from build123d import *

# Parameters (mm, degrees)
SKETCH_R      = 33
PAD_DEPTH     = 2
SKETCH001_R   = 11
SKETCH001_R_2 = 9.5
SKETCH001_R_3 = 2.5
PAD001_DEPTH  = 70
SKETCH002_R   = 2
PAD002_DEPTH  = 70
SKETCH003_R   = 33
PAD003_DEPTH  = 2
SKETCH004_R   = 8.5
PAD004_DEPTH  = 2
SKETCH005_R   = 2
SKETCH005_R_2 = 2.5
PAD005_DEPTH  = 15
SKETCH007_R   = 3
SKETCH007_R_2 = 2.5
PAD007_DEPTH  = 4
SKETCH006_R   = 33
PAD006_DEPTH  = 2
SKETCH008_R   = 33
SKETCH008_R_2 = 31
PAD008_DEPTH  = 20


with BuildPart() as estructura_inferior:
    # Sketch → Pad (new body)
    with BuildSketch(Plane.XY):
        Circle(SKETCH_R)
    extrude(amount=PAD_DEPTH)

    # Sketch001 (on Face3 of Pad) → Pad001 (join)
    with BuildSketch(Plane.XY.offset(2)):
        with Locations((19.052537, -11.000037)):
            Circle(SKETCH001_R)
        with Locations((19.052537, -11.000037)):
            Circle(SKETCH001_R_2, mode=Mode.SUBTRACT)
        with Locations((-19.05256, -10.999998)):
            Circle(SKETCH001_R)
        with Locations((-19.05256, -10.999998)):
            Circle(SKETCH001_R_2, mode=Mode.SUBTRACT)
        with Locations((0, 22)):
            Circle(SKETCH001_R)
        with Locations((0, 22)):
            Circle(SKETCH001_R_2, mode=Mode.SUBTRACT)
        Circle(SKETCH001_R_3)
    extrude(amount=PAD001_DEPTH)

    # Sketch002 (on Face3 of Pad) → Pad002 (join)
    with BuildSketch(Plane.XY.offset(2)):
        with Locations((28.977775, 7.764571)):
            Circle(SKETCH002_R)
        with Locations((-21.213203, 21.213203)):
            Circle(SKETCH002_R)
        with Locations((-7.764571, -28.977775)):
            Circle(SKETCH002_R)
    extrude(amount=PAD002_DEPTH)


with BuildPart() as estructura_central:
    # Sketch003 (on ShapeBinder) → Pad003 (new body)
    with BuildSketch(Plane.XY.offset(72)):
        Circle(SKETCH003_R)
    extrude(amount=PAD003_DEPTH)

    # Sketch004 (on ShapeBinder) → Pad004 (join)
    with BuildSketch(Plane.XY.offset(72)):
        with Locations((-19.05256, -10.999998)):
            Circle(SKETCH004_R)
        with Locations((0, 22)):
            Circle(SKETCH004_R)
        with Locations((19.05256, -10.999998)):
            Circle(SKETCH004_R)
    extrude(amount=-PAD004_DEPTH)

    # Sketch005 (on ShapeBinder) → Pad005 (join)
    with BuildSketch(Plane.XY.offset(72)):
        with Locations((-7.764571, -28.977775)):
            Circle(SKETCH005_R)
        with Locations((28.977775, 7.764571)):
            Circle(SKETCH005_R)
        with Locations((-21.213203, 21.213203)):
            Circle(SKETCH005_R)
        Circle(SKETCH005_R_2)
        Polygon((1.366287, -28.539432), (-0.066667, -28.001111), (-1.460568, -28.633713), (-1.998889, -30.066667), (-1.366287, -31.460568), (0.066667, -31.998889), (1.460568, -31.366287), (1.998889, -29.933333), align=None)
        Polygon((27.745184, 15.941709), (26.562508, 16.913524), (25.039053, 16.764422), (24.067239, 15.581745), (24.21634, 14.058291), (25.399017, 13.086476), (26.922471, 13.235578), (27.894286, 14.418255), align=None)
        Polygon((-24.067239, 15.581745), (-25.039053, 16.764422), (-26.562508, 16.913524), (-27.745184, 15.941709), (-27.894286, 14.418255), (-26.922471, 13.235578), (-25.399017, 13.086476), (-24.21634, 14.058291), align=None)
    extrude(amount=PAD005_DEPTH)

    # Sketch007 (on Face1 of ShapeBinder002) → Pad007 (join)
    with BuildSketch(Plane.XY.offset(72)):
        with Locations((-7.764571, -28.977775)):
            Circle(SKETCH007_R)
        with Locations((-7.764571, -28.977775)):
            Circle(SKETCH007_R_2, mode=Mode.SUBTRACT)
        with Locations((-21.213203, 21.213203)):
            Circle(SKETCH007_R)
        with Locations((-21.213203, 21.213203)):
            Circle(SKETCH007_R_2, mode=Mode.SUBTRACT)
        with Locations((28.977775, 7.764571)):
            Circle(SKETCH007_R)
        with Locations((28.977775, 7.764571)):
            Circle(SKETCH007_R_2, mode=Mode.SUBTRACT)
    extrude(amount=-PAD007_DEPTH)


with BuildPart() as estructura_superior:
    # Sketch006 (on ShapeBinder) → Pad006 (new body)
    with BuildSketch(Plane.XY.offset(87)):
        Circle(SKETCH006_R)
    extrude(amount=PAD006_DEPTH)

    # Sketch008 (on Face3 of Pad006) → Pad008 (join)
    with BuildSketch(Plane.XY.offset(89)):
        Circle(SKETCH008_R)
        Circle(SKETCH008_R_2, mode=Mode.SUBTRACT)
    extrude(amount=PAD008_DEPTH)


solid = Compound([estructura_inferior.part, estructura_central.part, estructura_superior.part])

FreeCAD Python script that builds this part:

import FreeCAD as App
import Part
import Sketcher
from FreeCAD import Vector


def add_polygon(sketch, points):
    """Adds a closed chain of lines whose ends are joined by coincident constraints."""
    first, n = sketch.GeometryCount, len(points)
    for a, b in zip(points, points[1:] + points[:1]):
        sketch.addGeometry(Part.LineSegment(App.Vector(*a, 0), App.Vector(*b, 0)), False)
    for i in range(n):
        sketch.addConstraint(Sketcher.Constraint("Coincident", first + i, 2, first + (i + 1) % n, 1))

doc = App.newDocument("Part")
params = doc.addObject("Spreadsheet::Sheet", "Params")
for row, (alias, value) in enumerate([
    ("sketch1_diameter", "66 mm"),
    ("pad1_length", "2 mm"),
    ("sketch2_diameter", "22 mm"),
    ("sketch2_diameter2", "19 mm"),
    ("sketch2_diameter3", "5 mm"),
    ("pad2_length", "70 mm"),
    ("sketch3_diameter", "4 mm"),
    ("pad3_length", "70 mm"),
    ("sketch4_diameter", "66 mm"),
    ("pad4_length", "2 mm"),
    ("sketch5_diameter", "17 mm"),
    ("pad5_length", "2 mm"),
    ("sketch6_diameter", "4 mm"),
    ("sketch6_diameter2", "5 mm"),
    ("pad6_length", "15 mm"),
    ("sketch7_diameter", "6 mm"),
    ("sketch7_diameter2", "5 mm"),
    ("pad7_length", "4 mm"),
    ("sketch8_diameter", "66 mm"),
    ("pad8_length", "2 mm"),
    ("sketch9_diameter", "66 mm"),
    ("sketch9_diameter2", "62 mm"),
    ("pad9_length", "20 mm"),
], start=1):
    params.set(f"A{row}", alias)
    params.set(f"B{row}", "=" + value)
    params.setAlias(f"B{row}", alias)

body = doc.addObject("PartDesign::Body", "Body")

sketch1 = body.newObject("Sketcher::SketchObject", "Sketch")
sketch1.AttachmentSupport = (doc.getObject("XY_Plane"), [""])
sketch1.MapMode = "FlatFace"
sketch1.addGeometry(Part.Circle(Vector(0, 0, 0), Vector(0, 0, 1), 33), False)
sketch1.addConstraint([
    Sketcher.Constraint("Coincident", 0, 3, -1, 1),
    Sketcher.Constraint("Diameter", 0, 66.0),
])
sketch1.setExpression("Constraints[1]", "Params.sketch1_diameter")
pad1 = body.newObject("PartDesign::Pad", "Pad")
pad1.Profile = sketch1
pad1.setExpression("Length", "Params.pad1_length")

sketch2 = body.newObject("Sketcher::SketchObject", "Sketch001")
sketch2.AttachmentSupport = (doc.getObject("XY_Plane"), [""])
sketch2.MapMode = "FlatFace"
sketch2.AttachmentOffset = App.Placement(Vector(0, 0, 2), App.Rotation())
sketch2.addGeometry([
    Part.Circle(Vector(19.1, -11, 0), Vector(0, 0, 1), 11),
    Part.Circle(Vector(19.1, -11, 0), Vector(0, 0, 1), 9.5),
    Part.Circle(Vector(-19.1, -11, 0), Vector(0, 0, 1), 11),
    Part.Circle(Vector(-19.1, -11, 0), Vector(0, 0, 1), 9.5),
    Part.Circle(Vector(0, 22, 0), Vector(0, 0, 1), 11),
    Part.Circle(Vector(0, 22, 0), Vector(0, 0, 1), 9.5),
    Part.Circle(Vector(0, 0, 0), Vector(0, 0, 1), 2.5),
], False)
sketch2.addConstraint([
    Sketcher.Constraint("Coincident", 6, 3, -1, 1),
    Sketcher.Constraint("Coincident", 1, 3, 0, 3),
    Sketcher.Constraint("Coincident", 3, 3, 2, 3),
    Sketcher.Constraint("Coincident", 5, 3, 4, 3),
    Sketcher.Constraint("Equal", 0, 2),
    Sketcher.Constraint("Equal", 1, 3),
    Sketcher.Constraint("Equal", 2, 4),
    Sketcher.Constraint("Equal", 3, 5),
    Sketcher.Constraint("PointOnObject", 4, 3, -2),
    Sketcher.Constraint("Diameter", 0, 22.0),
    Sketcher.Constraint("Diameter", 1, 19.0),
    Sketcher.Constraint("Diameter", 6, 5.0),
    Sketcher.Constraint("DistanceY", -1, 1, 4, 3, 22.0),
    Sketcher.Constraint("DistanceX", 2, 3, -1, 1, 19.05256),
    Sketcher.Constraint("DistanceX", -1, 1, 0, 3, 19.052537),
    Sketcher.Constraint("DistanceY", 0, 3, -1, 1, 11.000037),
    Sketcher.Constraint("DistanceY", 2, 3, -1, 1, 10.999998),
])
sketch2.setExpression("Constraints[9]", "Params.sketch2_diameter")
sketch2.setExpression("Constraints[10]", "Params.sketch2_diameter2")
sketch2.setExpression("Constraints[11]", "Params.sketch2_diameter3")
pad2 = body.newObject("PartDesign::Pad", "Pad001")
pad2.Profile = sketch2
pad2.setExpression("Length", "Params.pad2_length")

sketch3 = body.newObject("Sketcher::SketchObject", "Sketch002")
sketch3.AttachmentSupport = (doc.getObject("XY_Plane"), [""])
sketch3.MapMode = "FlatFace"
sketch3.AttachmentOffset = App.Placement(Vector(0, 0, 2), App.Rotation())
sketch3.addGeometry([
    Part.Circle(Vector(29, 7.8, 0), Vector(0, 0, 1), 2),
    Part.Circle(Vector(-21.2, 21.2, 0), Vector(0, 0, 1), 2),
    Part.Circle(Vector(-7.8, -29, 0), Vector(0, 0, 1), 2),
], False)
sketch3.addConstraint([
    Sketcher.Constraint("Equal", 0, 1),
    Sketcher.Constraint("Equal", 1, 2),
    Sketcher.Constraint("Diameter", 0, 4.0),
    Sketcher.Constraint("DistanceY", -1, 1, 0, 3, 7.764571),
    Sketcher.Constraint("DistanceX", 2, 3, -1, 1, 7.764571),
    Sketcher.Constraint("DistanceX", -1, 1, 0, 3, 28.977775),
    Sketcher.Constraint("DistanceX", 1, 3, -1, 1, 21.213203),
    Sketcher.Constraint("DistanceY", -1, 1, 1, 3, 21.213203),
    Sketcher.Constraint("DistanceY", 2, 3, -1, 1, 28.977775),
])
sketch3.setExpression("Constraints[2]", "Params.sketch3_diameter")
pad3 = body.newObject("PartDesign::Pad", "Pad002")
pad3.Profile = sketch3
pad3.setExpression("Length", "Params.pad3_length")
body2 = doc.addObject("PartDesign::Body", "Body001")

sketch4 = body2.newObject("Sketcher::SketchObject", "Sketch003")
sketch4.AttachmentSupport = (doc.getObject("XY_Plane001"), [""])
sketch4.MapMode = "FlatFace"
sketch4.AttachmentOffset = App.Placement(Vector(0, 0, 72), App.Rotation())
sketch4.addGeometry(Part.Circle(Vector(0, 0, 0), Vector(0, 0, 1), 33), False)
sketch4.addConstraint([
    Sketcher.Constraint("Coincident", 0, 3, -1, 1),
    Sketcher.Constraint("Diameter", 0, 66.0),
])
sketch4.setExpression("Constraints[1]", "Params.sketch4_diameter")
pad4 = body2.newObject("PartDesign::Pad", "Pad003")
pad4.Profile = sketch4
pad4.setExpression("Length", "Params.pad4_length")

sketch5 = body2.newObject("Sketcher::SketchObject", "Sketch004")
sketch5.AttachmentSupport = (doc.getObject("XY_Plane001"), [""])
sketch5.MapMode = "FlatFace"
sketch5.AttachmentOffset = App.Placement(Vector(0, 0, 72), App.Rotation())
sketch5.addGeometry([
    Part.Circle(Vector(-19, -11, 0), Vector(0, 0, 1), 8),
    Part.Circle(Vector(0, 22, 0), Vector(0, 0, 1), 8),
    Part.Circle(Vector(19, -11, 0), Vector(0, 0, 1), 8),
], False)
sketch5.addConstraint([
    Sketcher.Constraint("Equal", 0, 1),
    Sketcher.Constraint("Equal", 1, 2),
    Sketcher.Constraint("Symmetric", 0, 3, 2, 3, -2),
    Sketcher.Constraint("PointOnObject", 1, 3, -2),
    Sketcher.Constraint("Diameter", 0, 17.0),
    Sketcher.Constraint("DistanceY", -1, 1, 1, 3, 22.0),
    Sketcher.Constraint("DistanceX", 0, 3, -1, 1, 19.05256),
    Sketcher.Constraint("DistanceY", 0, 3, -1, 1, 10.999998),
])
sketch5.setExpression("Constraints[4]", "Params.sketch5_diameter")
pad5 = body2.newObject("PartDesign::Pad", "Pad004")
pad5.Profile = sketch5
pad5.setExpression("Length", "Params.pad5_length")
pad5.Reversed = True

sketch6 = body2.newObject("Sketcher::SketchObject", "Sketch005")
sketch6.AttachmentSupport = (doc.getObject("XY_Plane001"), [""])
sketch6.MapMode = "FlatFace"
sketch6.AttachmentOffset = App.Placement(Vector(0, 0, 72), App.Rotation())
sketch6.addGeometry(Part.Circle(Vector(-7.8, -29, 0), Vector(0, 0, 1), 2), False)
sketch6.addGeometry(Part.Circle(Vector(29, 7.8, 0), Vector(0, 0, 1), 2), False)
sketch6.addGeometry(Part.Circle(Vector(-21.2, 21.2, 0), Vector(0, 0, 1), 2), False)
sketch6.addGeometry(Part.Circle(Vector(0, 0, 0), Vector(0, 0, 1), 2.5), False)
add_polygon(sketch6, [(1.4, -28.5), (-0.1, -28), (-1.5, -28.6), (-2, -30.1), (-1.4, -31.5), (0.1, -32), (1.5, -31.4), (2, -29.9)])
add_polygon(sketch6, [(27.7, 15.9), (26.6, 16.9), (25, 16.8), (24.1, 15.6), (24.2, 14.1), (25.4, 13.1), (26.9, 13.2), (27.9, 14.4)])
add_polygon(sketch6, [(-24.1, 15.6), (-25, 16.8), (-26.6, 16.9), (-27.7, 15.9), (-27.9, 14.4), (-26.9, 13.2), (-25.4, 13.1), (-24.2, 14.1)])
sketch6.addConstraint([
    Sketcher.Constraint("Coincident", 3, 3, -1, 1),
    Sketcher.Constraint("Equal", 0, 1),
    Sketcher.Constraint("Equal", 1, 2),
    Sketcher.Constraint("Symmetric", 13, 2, 20, 2, -2),
    Sketcher.Constraint("Symmetric", 12, 2, 21, 2, -2),
    Sketcher.Constraint("Symmetric", 19, 2, 22, 2, -2),
    Sketcher.Constraint("Symmetric", 18, 2, 23, 2, -2),
    Sketcher.Constraint("Symmetric", 17, 2, 24, 2, -2),
    Sketcher.Constraint("Symmetric", 16, 2, 25, 2, -2),
    Sketcher.Constraint("Symmetric", 15, 2, 26, 2, -2),
    Sketcher.Constraint("Symmetric", 14, 2, 27, 2, -2),
    Sketcher.Constraint("Perpendicular", 4, 6),
    Sketcher.Constraint("Perpendicular", 5, 7),
    Sketcher.Constraint("Perpendicular", 6, 8),
    Sketcher.Constraint("Perpendicular", 7, 9),
    Sketcher.Constraint("Perpendicular", 8, 10),
    Sketcher.Constraint("Perpendicular", 9, 11),
    Sketcher.Constraint("Perpendicular", 12, 14),
    Sketcher.Constraint("Perpendicular", 13, 15),
    Sketcher.Constraint("Perpendicular", 14, 16),
    Sketcher.Constraint("Perpendicular", 15, 17),
    Sketcher.Constraint("Perpendicular", 16, 18),
    Sketcher.Constraint("Perpendicular", 17, 19),
    Sketcher.Constraint("Equal", 4, 5),
    Sketcher.Constraint("Equal", 5, 6),
    Sketcher.Constraint("Equal", 6, 7),
    Sketcher.Constraint("Equal", 7, 8),
    Sketcher.Constraint("Equal", 8, 9),
    Sketcher.Constraint("Equal", 11, 12),
    Sketcher.Constraint("Equal", 12, 13),
    Sketcher.Constraint("Equal", 13, 14),
    Sketcher.Constraint("Equal", 14, 15),
    Sketcher.Constraint("Equal", 15, 16),
    Sketcher.Constraint("Equal", 16, 17),
    Sketcher.Constraint("Diameter", 0, 4.0),
    Sketcher.Constraint("Diameter", 3, 5.0),
    Sketcher.Constraint("DistanceX", 5, 2, 4, 2, 1.393901),
    Sketcher.Constraint("DistanceY", 5, 2, 4, 2, 0.632602),
    Sketcher.Constraint("DistanceY", 13, 2, 12, 2, 0.149102),
    Sketcher.Constraint("DistanceY", 0, 3, 21, 2, 45.891299),
    Sketcher.Constraint("DistanceX", 0, 3, -1, 1, 7.764571),
    Sketcher.Constraint("DistanceY", -1, 1, 1, 3, 7.764571),
    Sketcher.Constraint("DistanceY", 4, 2, -1, 1, 28.001111),
    Sketcher.Constraint("DistanceX", 5, 2, -1, 1, 1.460568),
    Sketcher.Constraint("DistanceX", 6, 2, -1, 1, 1.998889),
    Sketcher.Constraint("DistanceX", -1, 1, 12, 2, 26.562508),
    Sketcher.Constraint("DistanceY", -1, 1, 13, 2, 16.764422),
    Sketcher.Constraint("DistanceX", -1, 1, 14, 2, 24.067239),
    Sketcher.Constraint("DistanceX", 4, 2, 1, 3, 29.044442),
    Sketcher.Constraint("DistanceX", 2, 3, 12, 2, 47.775711),
    Sketcher.Constraint("DistanceY", 12, 2, 2, 3, 4.299679),
])
sketch6.setExpression("Constraints[58]", "Params.sketch6_diameter")
sketch6.setExpression("Constraints[59]", "Params.sketch6_diameter2")
pad6 = body2.newObject("PartDesign::Pad", "Pad005")
pad6.Profile = sketch6
pad6.setExpression("Length", "Params.pad6_length")

sketch7 = body2.newObject("Sketcher::SketchObject", "Sketch006")
sketch7.AttachmentSupport = (doc.getObject("XY_Plane001"), [""])
sketch7.MapMode = "FlatFace"
sketch7.AttachmentOffset = App.Placement(Vector(0, 0, 72), App.Rotation())
sketch7.addGeometry([
    Part.Circle(Vector(-7.8, -29, 0), Vector(0, 0, 1), 3),
    Part.Circle(Vector(-7.8, -29, 0), Vector(0, 0, 1), 2.5),
    Part.Circle(Vector(-21.2, 21.2, 0), Vector(0, 0, 1), 3),
    Part.Circle(Vector(-21.2, 21.2, 0), Vector(0, 0, 1), 2.5),
    Part.Circle(Vector(29, 7.8, 0), Vector(0, 0, 1), 3),
    Part.Circle(Vector(29, 7.8, 0), Vector(0, 0, 1), 2.5),
], False)
sketch7.addConstraint([
    Sketcher.Constraint("Coincident", 1, 3, 0, 3),
    Sketcher.Constraint("Coincident", 3, 3, 2, 3),
    Sketcher.Constraint("Coincident", 5, 3, 4, 3),
    Sketcher.Constraint("Equal", 0, 2),
    Sketcher.Constraint("Equal", 1, 3),
    Sketcher.Constraint("Equal", 2, 4),
    Sketcher.Constraint("Equal", 3, 5),
    Sketcher.Constraint("Diameter", 0, 6.0),
    Sketcher.Constraint("Diameter", 1, 5.0),
    Sketcher.Constraint("DistanceX", 0, 3, -1, 1, 7.764571),
    Sketcher.Constraint("DistanceY", -1, 1, 4, 3, 7.764571),
    Sketcher.Constraint("DistanceY", 0, 3, -1, 1, 28.977775),
    Sketcher.Constraint("DistanceX", 2, 3, -1, 1, 21.213203),
    Sketcher.Constraint("DistanceY", -1, 1, 2, 3, 21.213203),
    Sketcher.Constraint("DistanceX", -1, 1, 4, 3, 28.977775),
])
sketch7.setExpression("Constraints[7]", "Params.sketch7_diameter")
sketch7.setExpression("Constraints[8]", "Params.sketch7_diameter2")
pad7 = body2.newObject("PartDesign::Pad", "Pad006")
pad7.Profile = sketch7
pad7.setExpression("Length", "Params.pad7_length")
pad7.Reversed = True
body3 = doc.addObject("PartDesign::Body", "Body002")

sketch8 = body3.newObject("Sketcher::SketchObject", "Sketch007")
sketch8.AttachmentSupport = (doc.getObject("XY_Plane002"), [""])
sketch8.MapMode = "FlatFace"
sketch8.AttachmentOffset = App.Placement(Vector(0, 0, 87), App.Rotation())
sketch8.addGeometry(Part.Circle(Vector(0, 0, 0), Vector(0, 0, 1), 33), False)
sketch8.addConstraint([
    Sketcher.Constraint("Coincident", 0, 3, -1, 1),
    Sketcher.Constraint("Diameter", 0, 66.0),
])
sketch8.setExpression("Constraints[1]", "Params.sketch8_diameter")
pad8 = body3.newObject("PartDesign::Pad", "Pad007")
pad8.Profile = sketch8
pad8.setExpression("Length", "Params.pad8_length")

sketch9 = body3.newObject("Sketcher::SketchObject", "Sketch008")
sketch9.AttachmentSupport = (doc.getObject("XY_Plane002"), [""])
sketch9.MapMode = "FlatFace"
sketch9.AttachmentOffset = App.Placement(Vector(0, 0, 89), App.Rotation())
sketch9.addGeometry([
    Part.Circle(Vector(0, 0, 0), Vector(0, 0, 1), 33),
    Part.Circle(Vector(0, 0, 0), Vector(0, 0, 1), 31),
], False)
sketch9.addConstraint([
    Sketcher.Constraint("Coincident", 0, 3, -1, 1),
    Sketcher.Constraint("Coincident", 1, 3, -1, 1),
    Sketcher.Constraint("Diameter", 0, 66.0),
    Sketcher.Constraint("Diameter", 1, 62.0),
])
sketch9.setExpression("Constraints[2]", "Params.sketch9_diameter")
sketch9.setExpression("Constraints[3]", "Params.sketch9_diameter2")
pad9 = body3.newObject("PartDesign::Pad", "Pad008")
pad9.Profile = sketch9
pad9.setExpression("Length", "Params.pad9_length")

doc.recompute()
